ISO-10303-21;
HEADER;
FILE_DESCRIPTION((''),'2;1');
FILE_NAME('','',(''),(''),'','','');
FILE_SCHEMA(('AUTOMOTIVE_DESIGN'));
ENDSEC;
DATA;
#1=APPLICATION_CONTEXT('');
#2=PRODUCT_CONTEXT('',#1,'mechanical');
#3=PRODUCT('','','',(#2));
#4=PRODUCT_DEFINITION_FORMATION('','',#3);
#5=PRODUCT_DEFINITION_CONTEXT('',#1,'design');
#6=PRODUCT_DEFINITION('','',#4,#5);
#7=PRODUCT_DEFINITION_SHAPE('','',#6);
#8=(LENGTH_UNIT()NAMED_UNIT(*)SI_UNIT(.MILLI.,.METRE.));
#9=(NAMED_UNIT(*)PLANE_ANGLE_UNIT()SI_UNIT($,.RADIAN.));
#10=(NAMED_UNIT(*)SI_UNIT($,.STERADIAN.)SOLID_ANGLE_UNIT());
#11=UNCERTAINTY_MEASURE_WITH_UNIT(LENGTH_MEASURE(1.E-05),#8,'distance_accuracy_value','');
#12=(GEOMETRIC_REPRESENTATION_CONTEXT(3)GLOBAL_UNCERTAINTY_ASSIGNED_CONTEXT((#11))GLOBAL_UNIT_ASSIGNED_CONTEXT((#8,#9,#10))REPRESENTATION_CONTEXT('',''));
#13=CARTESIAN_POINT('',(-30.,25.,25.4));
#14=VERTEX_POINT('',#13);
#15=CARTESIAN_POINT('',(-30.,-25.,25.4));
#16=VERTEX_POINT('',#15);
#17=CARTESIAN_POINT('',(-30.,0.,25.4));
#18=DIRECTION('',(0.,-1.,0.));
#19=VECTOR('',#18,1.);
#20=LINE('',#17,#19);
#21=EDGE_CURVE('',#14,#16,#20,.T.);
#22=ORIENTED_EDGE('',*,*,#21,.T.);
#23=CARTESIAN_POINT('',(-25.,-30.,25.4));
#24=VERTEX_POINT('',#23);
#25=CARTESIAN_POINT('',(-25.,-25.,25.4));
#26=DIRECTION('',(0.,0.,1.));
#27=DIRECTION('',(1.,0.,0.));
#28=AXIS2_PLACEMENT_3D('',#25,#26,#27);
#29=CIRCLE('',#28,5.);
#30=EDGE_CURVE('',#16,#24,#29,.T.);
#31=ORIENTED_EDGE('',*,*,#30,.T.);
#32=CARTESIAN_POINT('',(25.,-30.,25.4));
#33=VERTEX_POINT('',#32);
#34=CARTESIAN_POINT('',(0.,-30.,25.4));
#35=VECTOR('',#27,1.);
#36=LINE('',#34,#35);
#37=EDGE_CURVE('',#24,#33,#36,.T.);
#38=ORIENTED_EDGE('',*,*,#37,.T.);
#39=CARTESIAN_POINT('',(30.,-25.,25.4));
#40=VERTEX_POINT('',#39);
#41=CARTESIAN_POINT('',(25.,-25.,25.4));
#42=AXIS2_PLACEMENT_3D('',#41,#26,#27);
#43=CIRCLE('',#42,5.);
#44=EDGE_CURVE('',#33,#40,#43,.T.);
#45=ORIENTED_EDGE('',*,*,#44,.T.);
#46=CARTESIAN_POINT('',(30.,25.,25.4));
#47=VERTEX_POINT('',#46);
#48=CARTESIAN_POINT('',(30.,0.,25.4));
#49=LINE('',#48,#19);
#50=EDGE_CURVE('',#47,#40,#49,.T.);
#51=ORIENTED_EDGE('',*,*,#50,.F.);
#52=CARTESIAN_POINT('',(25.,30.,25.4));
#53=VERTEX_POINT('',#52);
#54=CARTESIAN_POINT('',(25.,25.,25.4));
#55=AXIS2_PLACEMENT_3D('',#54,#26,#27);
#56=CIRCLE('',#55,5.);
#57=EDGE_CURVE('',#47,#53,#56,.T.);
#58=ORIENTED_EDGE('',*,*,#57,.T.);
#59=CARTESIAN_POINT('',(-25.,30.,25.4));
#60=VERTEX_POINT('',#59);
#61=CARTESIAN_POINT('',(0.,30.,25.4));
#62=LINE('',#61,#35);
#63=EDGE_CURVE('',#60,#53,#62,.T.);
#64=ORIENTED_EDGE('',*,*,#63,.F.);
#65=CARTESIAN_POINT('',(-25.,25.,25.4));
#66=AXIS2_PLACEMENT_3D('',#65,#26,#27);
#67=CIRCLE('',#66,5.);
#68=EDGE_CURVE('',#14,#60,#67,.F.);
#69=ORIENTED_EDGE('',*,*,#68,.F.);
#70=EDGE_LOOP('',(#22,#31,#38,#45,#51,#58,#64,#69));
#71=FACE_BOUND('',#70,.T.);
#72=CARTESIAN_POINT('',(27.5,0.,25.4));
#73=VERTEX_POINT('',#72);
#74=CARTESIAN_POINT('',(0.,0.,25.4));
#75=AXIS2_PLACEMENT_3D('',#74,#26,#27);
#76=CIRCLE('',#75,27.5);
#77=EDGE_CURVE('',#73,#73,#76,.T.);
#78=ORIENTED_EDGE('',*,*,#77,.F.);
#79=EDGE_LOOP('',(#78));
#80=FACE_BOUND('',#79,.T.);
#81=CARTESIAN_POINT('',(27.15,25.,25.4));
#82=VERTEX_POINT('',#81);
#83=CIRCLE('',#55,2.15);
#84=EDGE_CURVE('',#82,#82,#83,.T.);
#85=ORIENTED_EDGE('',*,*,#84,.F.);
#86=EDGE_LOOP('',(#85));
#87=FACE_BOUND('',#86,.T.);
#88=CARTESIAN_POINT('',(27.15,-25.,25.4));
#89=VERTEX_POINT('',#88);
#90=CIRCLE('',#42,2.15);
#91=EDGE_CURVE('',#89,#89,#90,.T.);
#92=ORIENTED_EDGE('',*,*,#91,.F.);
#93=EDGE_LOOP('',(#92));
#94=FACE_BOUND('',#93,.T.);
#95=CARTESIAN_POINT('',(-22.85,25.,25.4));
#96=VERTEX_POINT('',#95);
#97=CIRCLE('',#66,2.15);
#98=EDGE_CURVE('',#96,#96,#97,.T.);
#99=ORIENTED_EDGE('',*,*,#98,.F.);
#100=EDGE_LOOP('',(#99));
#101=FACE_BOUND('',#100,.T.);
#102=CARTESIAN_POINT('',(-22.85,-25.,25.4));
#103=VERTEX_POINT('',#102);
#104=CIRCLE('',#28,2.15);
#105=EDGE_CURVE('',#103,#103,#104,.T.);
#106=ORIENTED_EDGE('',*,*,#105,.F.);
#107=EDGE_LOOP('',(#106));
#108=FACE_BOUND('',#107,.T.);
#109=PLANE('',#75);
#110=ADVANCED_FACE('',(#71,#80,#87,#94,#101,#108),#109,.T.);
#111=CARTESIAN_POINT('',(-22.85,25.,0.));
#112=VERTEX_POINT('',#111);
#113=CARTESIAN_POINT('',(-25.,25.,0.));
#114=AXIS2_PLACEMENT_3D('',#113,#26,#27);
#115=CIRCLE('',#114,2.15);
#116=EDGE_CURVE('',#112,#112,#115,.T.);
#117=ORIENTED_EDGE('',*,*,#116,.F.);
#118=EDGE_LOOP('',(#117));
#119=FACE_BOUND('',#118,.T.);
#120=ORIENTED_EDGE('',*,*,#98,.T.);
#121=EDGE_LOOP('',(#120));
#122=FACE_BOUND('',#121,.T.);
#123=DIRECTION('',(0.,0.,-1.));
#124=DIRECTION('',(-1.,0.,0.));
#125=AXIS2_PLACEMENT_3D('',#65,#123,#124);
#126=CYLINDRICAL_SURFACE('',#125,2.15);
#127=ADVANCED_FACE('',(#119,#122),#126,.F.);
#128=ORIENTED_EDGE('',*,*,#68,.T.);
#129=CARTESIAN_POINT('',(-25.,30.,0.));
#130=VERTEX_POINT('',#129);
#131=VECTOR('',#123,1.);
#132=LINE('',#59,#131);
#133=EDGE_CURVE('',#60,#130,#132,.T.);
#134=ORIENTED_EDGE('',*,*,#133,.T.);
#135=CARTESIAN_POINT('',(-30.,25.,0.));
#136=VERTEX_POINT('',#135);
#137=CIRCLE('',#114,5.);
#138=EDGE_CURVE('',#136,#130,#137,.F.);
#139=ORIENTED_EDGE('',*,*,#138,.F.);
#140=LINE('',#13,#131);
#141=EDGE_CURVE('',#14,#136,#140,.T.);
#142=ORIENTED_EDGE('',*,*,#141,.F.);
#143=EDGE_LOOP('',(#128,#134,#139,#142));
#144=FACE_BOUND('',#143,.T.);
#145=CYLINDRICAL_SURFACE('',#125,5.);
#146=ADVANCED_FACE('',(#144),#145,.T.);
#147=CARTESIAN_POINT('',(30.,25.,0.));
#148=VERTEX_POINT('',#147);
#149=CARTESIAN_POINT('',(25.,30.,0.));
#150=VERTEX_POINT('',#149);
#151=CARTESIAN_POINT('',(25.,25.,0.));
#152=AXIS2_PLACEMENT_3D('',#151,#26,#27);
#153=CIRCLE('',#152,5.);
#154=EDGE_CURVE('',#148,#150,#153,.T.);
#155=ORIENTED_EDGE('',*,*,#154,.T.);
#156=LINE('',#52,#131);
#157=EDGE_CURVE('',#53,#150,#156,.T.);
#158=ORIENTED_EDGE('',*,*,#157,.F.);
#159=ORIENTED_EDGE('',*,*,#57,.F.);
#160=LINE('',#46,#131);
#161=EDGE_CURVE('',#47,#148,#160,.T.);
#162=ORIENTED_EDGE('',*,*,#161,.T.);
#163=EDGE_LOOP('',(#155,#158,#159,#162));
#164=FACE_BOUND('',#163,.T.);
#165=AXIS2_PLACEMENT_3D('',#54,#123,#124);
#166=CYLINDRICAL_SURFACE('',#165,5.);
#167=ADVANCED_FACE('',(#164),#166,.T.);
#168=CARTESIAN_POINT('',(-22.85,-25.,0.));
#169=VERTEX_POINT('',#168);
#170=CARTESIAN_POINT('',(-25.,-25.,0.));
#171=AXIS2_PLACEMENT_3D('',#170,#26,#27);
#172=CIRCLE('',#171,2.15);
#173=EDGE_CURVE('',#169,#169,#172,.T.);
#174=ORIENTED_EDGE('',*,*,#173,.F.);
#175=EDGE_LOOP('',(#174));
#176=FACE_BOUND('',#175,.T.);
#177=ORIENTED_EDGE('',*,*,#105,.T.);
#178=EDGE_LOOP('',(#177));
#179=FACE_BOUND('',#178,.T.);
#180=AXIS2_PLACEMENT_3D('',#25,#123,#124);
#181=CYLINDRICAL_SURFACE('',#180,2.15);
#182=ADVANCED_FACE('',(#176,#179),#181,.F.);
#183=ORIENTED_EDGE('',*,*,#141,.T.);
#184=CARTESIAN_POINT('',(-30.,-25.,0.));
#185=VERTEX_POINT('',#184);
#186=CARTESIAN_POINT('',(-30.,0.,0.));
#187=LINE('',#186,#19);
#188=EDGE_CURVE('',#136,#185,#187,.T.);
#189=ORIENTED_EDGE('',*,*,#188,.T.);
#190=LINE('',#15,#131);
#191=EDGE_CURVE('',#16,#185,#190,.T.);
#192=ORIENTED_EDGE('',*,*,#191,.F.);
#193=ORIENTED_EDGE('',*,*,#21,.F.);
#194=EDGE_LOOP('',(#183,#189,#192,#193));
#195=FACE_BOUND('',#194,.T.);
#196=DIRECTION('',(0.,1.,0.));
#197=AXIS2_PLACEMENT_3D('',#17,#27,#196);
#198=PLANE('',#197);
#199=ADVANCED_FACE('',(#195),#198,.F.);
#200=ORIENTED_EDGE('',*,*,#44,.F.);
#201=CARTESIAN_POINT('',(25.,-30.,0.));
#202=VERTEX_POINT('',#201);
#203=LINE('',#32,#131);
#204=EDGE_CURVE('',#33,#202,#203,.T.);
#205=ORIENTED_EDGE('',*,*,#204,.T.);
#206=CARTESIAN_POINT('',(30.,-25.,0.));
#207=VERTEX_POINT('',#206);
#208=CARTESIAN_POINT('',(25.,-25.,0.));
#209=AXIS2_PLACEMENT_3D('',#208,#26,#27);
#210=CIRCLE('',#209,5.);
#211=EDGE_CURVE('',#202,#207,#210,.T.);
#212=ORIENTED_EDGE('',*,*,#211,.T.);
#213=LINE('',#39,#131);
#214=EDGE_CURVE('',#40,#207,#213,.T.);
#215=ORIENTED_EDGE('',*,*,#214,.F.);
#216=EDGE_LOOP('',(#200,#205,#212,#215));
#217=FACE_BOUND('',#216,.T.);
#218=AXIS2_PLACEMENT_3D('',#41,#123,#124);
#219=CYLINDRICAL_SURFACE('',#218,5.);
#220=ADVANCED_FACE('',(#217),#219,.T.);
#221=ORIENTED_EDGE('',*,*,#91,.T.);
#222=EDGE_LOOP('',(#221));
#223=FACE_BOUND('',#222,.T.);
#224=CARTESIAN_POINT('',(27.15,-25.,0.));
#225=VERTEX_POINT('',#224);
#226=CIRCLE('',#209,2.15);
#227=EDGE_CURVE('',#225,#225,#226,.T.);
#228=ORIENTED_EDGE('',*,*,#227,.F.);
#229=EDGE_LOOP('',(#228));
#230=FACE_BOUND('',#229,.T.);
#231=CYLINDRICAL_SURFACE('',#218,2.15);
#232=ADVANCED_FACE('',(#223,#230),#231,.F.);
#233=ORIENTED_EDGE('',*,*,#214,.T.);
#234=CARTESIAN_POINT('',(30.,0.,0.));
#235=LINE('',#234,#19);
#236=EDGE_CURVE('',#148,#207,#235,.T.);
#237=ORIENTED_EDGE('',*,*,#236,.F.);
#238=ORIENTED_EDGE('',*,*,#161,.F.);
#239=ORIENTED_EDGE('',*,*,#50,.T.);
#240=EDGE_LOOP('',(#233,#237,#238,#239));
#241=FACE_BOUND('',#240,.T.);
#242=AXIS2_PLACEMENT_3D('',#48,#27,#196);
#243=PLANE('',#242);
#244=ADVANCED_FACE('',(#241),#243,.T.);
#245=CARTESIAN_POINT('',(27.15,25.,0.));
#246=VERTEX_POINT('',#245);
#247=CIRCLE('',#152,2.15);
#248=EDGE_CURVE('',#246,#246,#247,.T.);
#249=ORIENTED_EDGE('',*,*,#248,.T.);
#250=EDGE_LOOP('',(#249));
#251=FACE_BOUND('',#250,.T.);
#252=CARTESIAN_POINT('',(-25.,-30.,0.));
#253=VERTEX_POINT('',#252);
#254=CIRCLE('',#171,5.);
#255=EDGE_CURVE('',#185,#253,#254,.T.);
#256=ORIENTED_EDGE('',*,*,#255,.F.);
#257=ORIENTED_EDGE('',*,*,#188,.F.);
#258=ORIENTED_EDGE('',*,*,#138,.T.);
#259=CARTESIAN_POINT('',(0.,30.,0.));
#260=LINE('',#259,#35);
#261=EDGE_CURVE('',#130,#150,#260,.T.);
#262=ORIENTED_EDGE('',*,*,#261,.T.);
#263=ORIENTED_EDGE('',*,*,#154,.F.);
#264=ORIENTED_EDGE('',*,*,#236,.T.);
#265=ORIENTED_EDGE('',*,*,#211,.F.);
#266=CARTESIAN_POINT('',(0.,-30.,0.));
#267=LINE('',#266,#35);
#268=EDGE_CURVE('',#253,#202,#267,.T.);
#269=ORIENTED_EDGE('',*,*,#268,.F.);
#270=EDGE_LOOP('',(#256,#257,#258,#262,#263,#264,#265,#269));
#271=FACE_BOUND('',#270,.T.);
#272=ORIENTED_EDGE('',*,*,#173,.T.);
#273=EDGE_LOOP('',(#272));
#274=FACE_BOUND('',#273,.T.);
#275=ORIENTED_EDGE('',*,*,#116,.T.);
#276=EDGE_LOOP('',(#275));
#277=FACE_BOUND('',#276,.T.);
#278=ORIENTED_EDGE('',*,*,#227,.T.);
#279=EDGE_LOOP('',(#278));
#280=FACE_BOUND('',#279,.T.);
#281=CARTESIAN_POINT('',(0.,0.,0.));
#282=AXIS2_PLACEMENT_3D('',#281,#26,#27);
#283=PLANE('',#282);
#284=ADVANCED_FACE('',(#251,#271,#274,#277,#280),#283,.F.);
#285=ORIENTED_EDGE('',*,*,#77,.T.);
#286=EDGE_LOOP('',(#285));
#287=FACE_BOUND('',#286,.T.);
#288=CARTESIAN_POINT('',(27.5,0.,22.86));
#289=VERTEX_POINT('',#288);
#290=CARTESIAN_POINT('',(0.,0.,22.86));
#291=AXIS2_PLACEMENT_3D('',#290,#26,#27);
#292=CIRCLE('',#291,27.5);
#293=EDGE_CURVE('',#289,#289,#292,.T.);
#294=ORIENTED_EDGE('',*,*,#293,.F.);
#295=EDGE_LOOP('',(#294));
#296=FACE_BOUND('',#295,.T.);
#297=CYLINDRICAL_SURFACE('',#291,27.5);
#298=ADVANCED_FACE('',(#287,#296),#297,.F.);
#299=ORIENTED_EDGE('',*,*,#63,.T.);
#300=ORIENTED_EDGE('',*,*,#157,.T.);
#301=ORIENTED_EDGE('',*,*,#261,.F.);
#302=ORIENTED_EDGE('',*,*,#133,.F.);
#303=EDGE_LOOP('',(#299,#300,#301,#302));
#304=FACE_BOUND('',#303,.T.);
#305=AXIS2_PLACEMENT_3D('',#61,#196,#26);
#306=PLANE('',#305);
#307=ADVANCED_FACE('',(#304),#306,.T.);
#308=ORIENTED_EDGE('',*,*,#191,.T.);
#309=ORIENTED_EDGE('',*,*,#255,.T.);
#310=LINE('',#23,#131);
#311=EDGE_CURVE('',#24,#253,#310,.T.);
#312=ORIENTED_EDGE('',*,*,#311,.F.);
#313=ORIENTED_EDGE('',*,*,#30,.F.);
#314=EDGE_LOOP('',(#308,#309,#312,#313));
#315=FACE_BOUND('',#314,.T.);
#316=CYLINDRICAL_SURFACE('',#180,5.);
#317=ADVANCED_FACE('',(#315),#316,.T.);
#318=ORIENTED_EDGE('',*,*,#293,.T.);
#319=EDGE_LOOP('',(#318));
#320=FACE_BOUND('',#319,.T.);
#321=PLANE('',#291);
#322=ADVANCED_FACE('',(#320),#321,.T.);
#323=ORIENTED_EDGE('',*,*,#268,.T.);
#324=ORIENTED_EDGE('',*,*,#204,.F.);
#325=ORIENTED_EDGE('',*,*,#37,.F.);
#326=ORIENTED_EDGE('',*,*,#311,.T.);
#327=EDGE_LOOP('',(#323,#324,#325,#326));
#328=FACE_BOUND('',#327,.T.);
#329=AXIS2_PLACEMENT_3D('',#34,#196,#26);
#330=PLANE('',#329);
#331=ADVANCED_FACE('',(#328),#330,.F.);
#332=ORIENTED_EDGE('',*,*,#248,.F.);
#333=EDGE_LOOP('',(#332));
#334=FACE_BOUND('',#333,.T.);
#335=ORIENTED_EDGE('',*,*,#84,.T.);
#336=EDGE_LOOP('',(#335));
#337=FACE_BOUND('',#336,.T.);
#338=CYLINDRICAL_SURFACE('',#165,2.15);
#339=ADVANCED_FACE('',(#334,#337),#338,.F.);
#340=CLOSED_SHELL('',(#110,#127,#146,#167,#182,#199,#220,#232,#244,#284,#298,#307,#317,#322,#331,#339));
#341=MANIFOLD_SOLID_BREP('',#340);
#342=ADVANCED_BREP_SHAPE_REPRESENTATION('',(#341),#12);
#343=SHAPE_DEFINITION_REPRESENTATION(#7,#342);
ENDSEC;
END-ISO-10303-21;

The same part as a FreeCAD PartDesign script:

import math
import FreeCAD as App
import Part
import Sketcher

V = App.Vector

doc = App.newDocument("Part")
params = doc.addObject("Spreadsheet::Sheet", "Params")
for row, (alias, value) in enumerate([
    ("sketch1_radius", "5 mm"),
    ("sketch1_diameter", "4.3 mm"),
    ("sketch1_width", "50 mm"),
    ("pad1_length", "25.4 mm"),
    ("sketch2_diameter", "55 mm"),
    ("pocket1_length", "2.54 mm"),
], start=1):
    params.set(f"A{row}", alias)
    params.set(f"B{row}", "=" + value)
    params.setAlias(f"B{row}", alias)

body = doc.addObject("PartDesign::Body", "Body")

# Sketch on XY plane
sketch1 = body.newObject("Sketcher::SketchObject", "Sketch")
sketch1.AttachmentSupport = (doc.getObject("XY_Plane"), [""])
sketch1.MapMode = "FlatFace"
sketch1.addGeometry([
    Part.LineSegment(V(25, 30, 0), V(-25, 30, 0)),  # 0
    Part.ArcOfCircle(Part.Circle(V(-25, 25, 0), V(0, 0, 1), 5), math.radians(90), math.radians(180)),  # 1
    Part.LineSegment(V(-30, 25, 0), V(-30, -25, 0)),  # 2
    Part.ArcOfCircle(Part.Circle(V(-25, -25, 0), V(0, 0, 1), 5), math.radians(-180), math.radians(-90)),  # 3
    Part.LineSegment(V(-25, -30, 0), V(25, -30, 0)),  # 4
    Part.ArcOfCircle(Part.Circle(V(25, -25, 0), V(0, 0, 1), 5), math.radians(-90), math.radians(0)),  # 5
    Part.LineSegment(V(30, -25, 0), V(30, 25, 0)),  # 6
    Part.ArcOfCircle(Part.Circle(V(25, 25, 0), V(0, 0, 1), 5), math.radians(0), math.radians(90)),  # 7
    Part.Circle(V(-25, -25, 0), V(0, 0, 1), 2.1),  # 8
    Part.Circle(V(25, -25, 0), V(0, 0, 1), 2.1),  # 9
    Part.Circle(V(-25, 25, 0), V(0, 0, 1), 2.1),  # 10
    Part.Circle(V(25, 25, 0), V(0, 0, 1), 2.1),  # 11
], False)
sketch1.addConstraint([
    Sketcher.Constraint("Tangent", 0, 2, 1, 1),
    Sketcher.Constraint("Tangent", 1, 2, 2, 1),
    Sketcher.Constraint("Tangent", 2, 2, 3, 1),
    Sketcher.Constraint("Tangent", 3, 2, 4, 1),
    Sketcher.Constraint("Tangent", 4, 2, 5, 1),
    Sketcher.Constraint("Tangent", 5, 2, 6, 1),
    Sketcher.Constraint("Tangent", 6, 2, 7, 1),
    Sketcher.Constraint("Tangent", 7, 2, 0, 1),
    Sketcher.Constraint("Horizontal", 0),
    Sketcher.Constraint("Vertical", 2),
    Sketcher.Constraint("Horizontal", 4),
    Sketcher.Constraint("Vertical", 6),
    Sketcher.Constraint("Coincident", 8, 3, 3, 3),
    Sketcher.Constraint("Coincident", 9, 3, 5, 3),
    Sketcher.Constraint("Coincident", 10, 3, 1, 3),
    Sketcher.Constraint("Coincident", 11, 3, 7, 3),
    Sketcher.Constraint("Equal", 1, 3),
    Sketcher.Constraint("Equal", 3, 5),
    Sketcher.Constraint("Equal", 5, 7),
    Sketcher.Constraint("Equal", 8, 9),
    Sketcher.Constraint("Equal", 9, 10),
    Sketcher.Constraint("Equal", 10, 11),
    Sketcher.Constraint("Symmetric", 1, 3, 5, 3, -1, 1),
    Sketcher.Constraint("Equal", 4, 2),
    Sketcher.Constraint("Radius", 1, 5.0),
    Sketcher.Constraint("Diameter", 8, 4.3),
    Sketcher.Constraint("DistanceX", 0, 2, 0, 1, 50.0),
])
sketch1.setExpression("Constraints[24]", "Params.sketch1_radius")
sketch1.setExpression("Constraints[25]", "Params.sketch1_diameter")
sketch1.setExpression("Constraints[26]", "Params.sketch1_width")
pad1 = body.newObject("PartDesign::Pad", "Pad")
pad1.Profile = sketch1
pad1.setExpression("Length", "Params.pad1_length")

# Sketch on XY plane
sketch2 = body.newObject("Sketcher::SketchObject", "Sketch001")
sketch2.AttachmentSupport = (doc.getObject("XY_Plane"), [""])
sketch2.MapMode = "FlatFace"
sketch2.AttachmentOffset = App.Placement(V(0, 0, 25.4), App.Rotation())
sketch2.addGeometry(Part.Circle(V(0, 0, 0), V(0, 0, 1), 28), False)
sketch2.addConstraint([
    Sketcher.Constraint("Coincident", 0, 3, -1, 1),
    Sketcher.Constraint("Diameter", 0, 55.0),
])
sketch2.setExpression("Constraints[1]", "Params.sketch2_diameter")
pocket1 = body.newObject("PartDesign::Pocket", "Pocket")
pocket1.Profile = sketch2
pocket1.setExpression("Length", "Params.pocket1_length")

doc.recompute()
